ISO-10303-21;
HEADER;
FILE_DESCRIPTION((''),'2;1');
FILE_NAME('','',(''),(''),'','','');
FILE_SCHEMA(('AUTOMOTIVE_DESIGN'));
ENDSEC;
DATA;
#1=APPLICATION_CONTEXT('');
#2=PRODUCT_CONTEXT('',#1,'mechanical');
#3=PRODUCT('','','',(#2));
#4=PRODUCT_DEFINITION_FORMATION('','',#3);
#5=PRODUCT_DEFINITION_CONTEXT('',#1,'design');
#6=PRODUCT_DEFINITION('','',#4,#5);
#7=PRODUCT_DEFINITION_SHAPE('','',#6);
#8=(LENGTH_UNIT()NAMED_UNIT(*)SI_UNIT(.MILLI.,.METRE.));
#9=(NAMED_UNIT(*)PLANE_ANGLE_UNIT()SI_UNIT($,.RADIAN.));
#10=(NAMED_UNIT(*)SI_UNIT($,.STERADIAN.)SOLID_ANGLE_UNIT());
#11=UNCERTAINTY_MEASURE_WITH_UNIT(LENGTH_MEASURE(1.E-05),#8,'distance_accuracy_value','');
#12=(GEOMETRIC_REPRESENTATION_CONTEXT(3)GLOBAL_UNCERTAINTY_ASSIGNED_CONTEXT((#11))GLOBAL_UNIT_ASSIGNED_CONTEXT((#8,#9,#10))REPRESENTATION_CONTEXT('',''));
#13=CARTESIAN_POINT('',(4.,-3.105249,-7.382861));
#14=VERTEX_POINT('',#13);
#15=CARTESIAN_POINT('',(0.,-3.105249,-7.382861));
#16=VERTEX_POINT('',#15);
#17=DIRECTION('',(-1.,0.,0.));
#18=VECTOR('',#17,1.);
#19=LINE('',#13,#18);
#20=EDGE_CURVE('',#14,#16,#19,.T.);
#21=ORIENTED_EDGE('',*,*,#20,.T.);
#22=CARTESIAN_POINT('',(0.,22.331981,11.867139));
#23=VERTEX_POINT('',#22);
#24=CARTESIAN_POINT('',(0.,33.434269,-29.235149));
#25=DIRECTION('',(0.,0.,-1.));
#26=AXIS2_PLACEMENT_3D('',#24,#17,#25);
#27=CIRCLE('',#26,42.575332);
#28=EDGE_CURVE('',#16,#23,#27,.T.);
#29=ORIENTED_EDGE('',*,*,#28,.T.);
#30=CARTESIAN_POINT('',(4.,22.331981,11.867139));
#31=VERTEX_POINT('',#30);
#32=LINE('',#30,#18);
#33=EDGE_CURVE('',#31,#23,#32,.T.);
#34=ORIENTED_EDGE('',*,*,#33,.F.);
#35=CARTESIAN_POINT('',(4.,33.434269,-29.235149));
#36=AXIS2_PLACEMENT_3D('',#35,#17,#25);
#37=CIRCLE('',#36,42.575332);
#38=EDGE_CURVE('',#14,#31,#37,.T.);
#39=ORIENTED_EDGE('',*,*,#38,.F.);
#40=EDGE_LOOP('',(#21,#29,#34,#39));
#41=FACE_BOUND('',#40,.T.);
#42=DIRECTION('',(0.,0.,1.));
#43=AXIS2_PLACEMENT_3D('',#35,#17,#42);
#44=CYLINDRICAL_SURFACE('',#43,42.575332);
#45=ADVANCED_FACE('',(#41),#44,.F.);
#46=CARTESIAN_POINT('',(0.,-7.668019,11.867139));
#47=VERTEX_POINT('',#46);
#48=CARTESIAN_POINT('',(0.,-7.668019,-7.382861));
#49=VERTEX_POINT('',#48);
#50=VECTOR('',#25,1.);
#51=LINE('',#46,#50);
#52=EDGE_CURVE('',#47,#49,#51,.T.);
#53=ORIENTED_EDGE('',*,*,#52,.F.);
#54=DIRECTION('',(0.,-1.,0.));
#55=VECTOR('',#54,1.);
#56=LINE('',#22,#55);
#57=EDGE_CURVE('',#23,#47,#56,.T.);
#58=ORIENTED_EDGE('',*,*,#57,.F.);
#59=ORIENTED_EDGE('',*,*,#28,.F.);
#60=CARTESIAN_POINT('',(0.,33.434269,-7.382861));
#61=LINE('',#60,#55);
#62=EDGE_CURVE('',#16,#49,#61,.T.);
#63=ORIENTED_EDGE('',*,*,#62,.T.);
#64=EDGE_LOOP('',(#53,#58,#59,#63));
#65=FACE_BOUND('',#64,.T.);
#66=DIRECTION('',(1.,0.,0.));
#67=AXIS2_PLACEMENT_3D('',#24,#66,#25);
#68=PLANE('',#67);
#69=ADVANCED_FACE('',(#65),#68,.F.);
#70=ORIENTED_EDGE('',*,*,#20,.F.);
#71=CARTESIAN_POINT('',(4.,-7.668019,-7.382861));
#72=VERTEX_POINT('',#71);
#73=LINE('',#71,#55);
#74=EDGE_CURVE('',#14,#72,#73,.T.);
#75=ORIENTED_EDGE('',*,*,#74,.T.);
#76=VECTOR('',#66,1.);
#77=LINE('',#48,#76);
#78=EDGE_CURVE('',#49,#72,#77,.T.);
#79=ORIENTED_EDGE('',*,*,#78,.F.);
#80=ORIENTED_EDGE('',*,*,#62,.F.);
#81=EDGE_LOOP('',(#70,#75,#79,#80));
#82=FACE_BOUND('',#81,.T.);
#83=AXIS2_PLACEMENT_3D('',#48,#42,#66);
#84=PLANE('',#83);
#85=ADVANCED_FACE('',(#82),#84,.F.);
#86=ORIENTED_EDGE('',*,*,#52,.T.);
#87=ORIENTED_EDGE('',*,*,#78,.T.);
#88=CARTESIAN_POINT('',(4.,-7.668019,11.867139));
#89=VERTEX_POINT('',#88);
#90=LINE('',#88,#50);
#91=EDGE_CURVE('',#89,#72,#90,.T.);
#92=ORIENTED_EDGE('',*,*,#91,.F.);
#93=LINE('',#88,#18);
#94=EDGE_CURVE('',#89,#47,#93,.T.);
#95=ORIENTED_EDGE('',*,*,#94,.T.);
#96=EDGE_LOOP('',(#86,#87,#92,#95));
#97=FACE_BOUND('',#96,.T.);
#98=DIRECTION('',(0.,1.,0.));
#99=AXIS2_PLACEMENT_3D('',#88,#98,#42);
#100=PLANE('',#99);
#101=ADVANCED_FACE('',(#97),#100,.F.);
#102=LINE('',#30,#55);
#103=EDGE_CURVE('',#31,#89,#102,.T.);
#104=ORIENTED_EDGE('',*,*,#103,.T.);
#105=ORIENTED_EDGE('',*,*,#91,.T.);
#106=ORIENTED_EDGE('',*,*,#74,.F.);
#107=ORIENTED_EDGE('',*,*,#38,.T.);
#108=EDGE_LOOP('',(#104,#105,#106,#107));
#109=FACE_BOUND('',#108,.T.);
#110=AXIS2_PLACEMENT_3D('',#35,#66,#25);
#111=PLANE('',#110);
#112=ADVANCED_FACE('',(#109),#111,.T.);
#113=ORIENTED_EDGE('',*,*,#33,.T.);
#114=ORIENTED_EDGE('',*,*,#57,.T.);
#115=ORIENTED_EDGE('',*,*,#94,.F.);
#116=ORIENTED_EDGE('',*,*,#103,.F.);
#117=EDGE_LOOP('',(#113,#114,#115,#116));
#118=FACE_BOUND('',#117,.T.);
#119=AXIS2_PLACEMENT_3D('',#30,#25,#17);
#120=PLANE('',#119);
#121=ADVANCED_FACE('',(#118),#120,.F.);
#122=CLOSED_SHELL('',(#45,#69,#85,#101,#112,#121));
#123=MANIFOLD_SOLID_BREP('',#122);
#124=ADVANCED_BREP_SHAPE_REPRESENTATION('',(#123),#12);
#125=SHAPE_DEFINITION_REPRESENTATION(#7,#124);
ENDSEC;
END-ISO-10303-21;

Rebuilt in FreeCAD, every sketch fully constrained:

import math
import FreeCAD as App
import Part
import Sketcher

doc = App.newDocument("Part")
body = doc.addObject("PartDesign::Body", "Body")

sketch1 = body.newObject("Sketcher::SketchObject", "Sketch")
sketch1.AttachmentSupport = (doc.getObject("YZ_Plane"), [""])
sketch1.MapMode = "FlatFace"
sketch1.addGeometry(Part.LineSegment(App.Vector(22, 12, 0), App.Vector(-8, 12, 0)), False)
sketch1.addGeometry(Part.LineSegment(App.Vector(-8, 12, 0), App.Vector(-8, -18, 0)), False)
sketch1.addGeometry(Part.ArcOfCircle(Part.Circle(App.Vector(33, -29, 0), App.Vector(0, 0, 1), 43), math.radians(105), math.radians(165)), False)
sketch1.addConstraint(Sketcher.Constraint("Coincident", 0, 2, 1, 1))
sketch1.addConstraint(Sketcher.Constraint("Coincident", 1, 2, 2, 2))
sketch1.addConstraint(Sketcher.Constraint("Coincident", 2, 1, 0, 1))
sketch1.addConstraint(Sketcher.Constraint("Horizontal", 0))
sketch1.addConstraint(Sketcher.Constraint("Vertical", 1))
sketch1.addConstraint(Sketcher.Constraint("Equal", 0, 1))
sketch1.addConstraint(Sketcher.Constraint("DistanceX", 0, 2, 0, 1, 30.0))
sketch1.addConstraint(Sketcher.Constraint("Radius", 2, 42.575332))
sketch1.addConstraint(Sketcher.Constraint("DistanceX", -1, 1, 2, 3, 33.434269))
sketch1.addConstraint(Sketcher.Constraint("DistanceY", 2, 3, -1, 1, 29.235149))
pad1 = body.newObject("PartDesign::Pad", "Pad")
pad1.Profile = sketch1
pad1.Length = 4

sketch2 = body.newObject("Sketcher::SketchObject", "Sketch001")
sketch2.AttachmentSupport = (doc.getObject("YZ_Plane"), [""])
sketch2.MapMode = "FlatFace"
sketch2.AttachmentOffset = App.Placement(App.Vector(0, 0, 4), App.Rotation())
sketch2.addGeometry(Part.LineSegment(App.Vector(13, -7, 0), App.Vector(-8, -7, 0)), False)
sketch2.addGeometry(Part.LineSegment(App.Vector(-8, -7, 0), App.Vector(-8, -18, 0)), False)
sketch2.addGeometry(Part.LineSegment(App.Vector(-8, -18, 0), App.Vector(13, -18, 0)), False)
sketch2.addGeometry(Part.LineSegment(App.Vector(13, -18, 0), App.Vector(13, -7, 0)), False)
sketch2.addConstraint(Sketcher.Constraint("Coincident", 0, 2, 1, 1))
sketch2.addConstraint(Sketcher.Constraint("Coincident", 1, 2, 2, 1))
sketch2.addConstraint(Sketcher.Constraint("Coincident", 2, 2, 3, 1))
sketch2.addConstraint(Sketcher.Constraint("Coincident", 3, 2, 0, 1))
sketch2.addConstraint(Sketcher.Constraint("Horizontal", 0))
sketch2.addConstraint(Sketcher.Constraint("Vertical", 1))
sketch2.addConstraint(Sketcher.Constraint("Horizontal", 2))
sketch2.addConstraint(Sketcher.Constraint("Vertical", 3))
sketch2.addConstraint(Sketcher.Constraint("DistanceY", 1, 2, 1, 1, 10.75))
sketch2.addConstraint(Sketcher.Constraint("DistanceX", 0, 2, 0, 1, 20.327264))
sketch2.addConstraint(Sketcher.Constraint("DistanceX", 0, 2, -1, 1, 7.668019))
sketch2.addConstraint(Sketcher.Constraint("DistanceY", 0, 2, -1, 1, 7.382861))
pocket1 = body.newObject("PartDesign::Pocket", "Pocket")
pocket1.Profile = sketch2
pocket1.Length = 4

doc.recompute()
